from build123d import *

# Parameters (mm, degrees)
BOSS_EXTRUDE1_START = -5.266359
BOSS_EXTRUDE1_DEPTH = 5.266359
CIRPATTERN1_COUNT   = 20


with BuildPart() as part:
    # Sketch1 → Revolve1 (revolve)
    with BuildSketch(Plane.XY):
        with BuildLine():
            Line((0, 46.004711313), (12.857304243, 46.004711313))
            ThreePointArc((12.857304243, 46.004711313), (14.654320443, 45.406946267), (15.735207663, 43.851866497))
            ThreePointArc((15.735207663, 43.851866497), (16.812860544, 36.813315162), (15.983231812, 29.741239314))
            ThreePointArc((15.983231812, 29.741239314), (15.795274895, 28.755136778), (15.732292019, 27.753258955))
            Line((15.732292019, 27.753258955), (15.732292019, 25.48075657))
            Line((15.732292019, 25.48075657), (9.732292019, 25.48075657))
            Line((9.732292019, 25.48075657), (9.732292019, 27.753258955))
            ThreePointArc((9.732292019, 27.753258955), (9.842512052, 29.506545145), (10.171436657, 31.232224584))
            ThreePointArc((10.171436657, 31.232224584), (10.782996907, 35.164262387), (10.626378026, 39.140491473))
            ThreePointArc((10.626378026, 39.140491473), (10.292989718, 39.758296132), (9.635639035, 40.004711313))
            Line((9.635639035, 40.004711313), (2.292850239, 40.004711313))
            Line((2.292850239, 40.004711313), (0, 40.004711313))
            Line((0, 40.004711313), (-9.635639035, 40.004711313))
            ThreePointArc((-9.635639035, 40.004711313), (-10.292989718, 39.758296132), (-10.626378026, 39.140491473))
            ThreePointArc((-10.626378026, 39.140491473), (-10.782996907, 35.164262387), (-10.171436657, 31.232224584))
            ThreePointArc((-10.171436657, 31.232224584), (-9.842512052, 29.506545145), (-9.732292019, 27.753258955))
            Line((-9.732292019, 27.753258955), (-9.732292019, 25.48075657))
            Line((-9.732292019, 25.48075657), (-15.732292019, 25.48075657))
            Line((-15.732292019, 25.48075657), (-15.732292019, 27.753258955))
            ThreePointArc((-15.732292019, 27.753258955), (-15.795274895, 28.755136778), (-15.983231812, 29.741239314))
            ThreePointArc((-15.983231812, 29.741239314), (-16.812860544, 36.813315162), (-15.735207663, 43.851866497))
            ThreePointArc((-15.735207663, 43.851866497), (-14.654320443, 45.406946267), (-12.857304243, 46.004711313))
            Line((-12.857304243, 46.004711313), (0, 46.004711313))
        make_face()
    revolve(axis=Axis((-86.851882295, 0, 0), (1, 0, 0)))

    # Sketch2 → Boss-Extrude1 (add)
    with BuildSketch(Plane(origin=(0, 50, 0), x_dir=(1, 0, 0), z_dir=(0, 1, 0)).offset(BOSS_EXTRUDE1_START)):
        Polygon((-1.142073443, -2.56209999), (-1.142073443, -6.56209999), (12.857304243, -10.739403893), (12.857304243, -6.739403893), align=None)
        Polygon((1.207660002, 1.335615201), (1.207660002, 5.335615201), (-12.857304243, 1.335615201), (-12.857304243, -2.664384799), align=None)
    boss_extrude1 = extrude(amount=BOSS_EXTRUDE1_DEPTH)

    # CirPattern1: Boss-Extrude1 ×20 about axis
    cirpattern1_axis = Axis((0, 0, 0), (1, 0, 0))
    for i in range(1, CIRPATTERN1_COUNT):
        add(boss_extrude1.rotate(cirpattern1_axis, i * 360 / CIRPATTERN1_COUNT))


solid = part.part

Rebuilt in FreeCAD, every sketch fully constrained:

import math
import FreeCAD as App
import Part
import Sketcher

doc = App.newDocument("Part")
params = doc.addObject("Spreadsheet::Sheet", "Params")
for row, (alias, value) in enumerate([
    ("sketch1_radius", "3 mm"),
    ("sketch1_radius2", "8 mm"),
    ("sketch1_radius3", "14 mm"),
    ("sketch1_radius4", "1 mm"),
    ("revolution_angle", "360 deg"),
    ("sketch2_height", "4 mm"),
    ("pad1_length", "5.266359 mm"),
], start=1):
    params.set(f"A{row}", alias)
    params.set(f"B{row}", "=" + value)
    params.setAlias(f"B{row}", alias)

body = doc.addObject("PartDesign::Body", "Body")

# Sketch on XY plane
sketch1 = doc.addObject("Sketcher::SketchObject", "Sketch")
body.addObject(sketch1)
sketch1.AttachmentSupport = (doc.XY_Plane, [""])
sketch1.MapMode = "FlatFace"
sketch1.addGeometry(Part.ArcOfCircle(Part.Circle(App.Vector(12.9, 43, 0), App.Vector(0, 0, 1), 3), math.radians(16), math.radians(90)), False)
sketch1.addGeometry(Part.LineSegment(App.Vector(12.9, 46, 0), App.Vector(-12.9, 46, 0)), False)
sketch1.addGeometry(Part.ArcOfCircle(Part.Circle(App.Vector(-12.9, 43, 0), App.Vector(0, 0, 1), 3), math.radians(90), math.radians(164)), False)
sketch1.addGeometry(Part.ArcOfCircle(Part.Circle(App.Vector(9.8, 36.3, 0), App.Vector(0, 0, 1), 26.6), math.radians(164), math.radians(194)), False)
sketch1.addGeometry(Part.ArcOfCircle(Part.Circle(App.Vector(-23.7, 27.8, 0), App.Vector(0, 0, 1), 8), math.radians(0), math.radians(14.39)), False)
sketch1.addGeometry(Part.LineSegment(App.Vector(-15.7, 27.8, 0), App.Vector(-15.7, 25.5, 0)), False)
sketch1.addGeometry(Part.LineSegment(App.Vector(-15.7, 25.5, 0), App.Vector(-9.7, 25.5, 0)), False)
sketch1.addGeometry(Part.LineSegment(App.Vector(-9.7, 25.5, 0), App.Vector(-9.7, 27.8, 0)), False)
sketch1.addGeometry(Part.ArcOfCircle(Part.Circle(App.Vector(-23.7, 27.8, 0), App.Vector(0, 0, 1), 14), math.radians(0), math.radians(14.39)), False)
sketch1.addGeometry(Part.ArcOfCircle(Part.Circle(App.Vector(9.8, 36.3, 0), App.Vector(0, 0, 1), 20.6), math.radians(172), math.radians(194)), False)
sketch1.addGeometry(Part.ArcOfCircle(Part.Circle(App.Vector(-9.6, 39, 0), App.Vector(0, 0, 1), 1), math.radians(90), math.radians(172)), False)
sketch1.addGeometry(Part.LineSegment(App.Vector(-9.6, 40, 0), App.Vector(9.6, 40, 0)), False)
sketch1.addGeometry(Part.ArcOfCircle(Part.Circle(App.Vector(9.6, 39, 0), App.Vector(0, 0, 1), 1), math.radians(8), math.radians(90)), False)
sketch1.addGeometry(Part.ArcOfCircle(Part.Circle(App.Vector(-9.8, 36.3, 0), App.Vector(0, 0, 1), 20.6), math.radians(-14), math.radians(8)), False)
sketch1.addGeometry(Part.ArcOfCircle(Part.Circle(App.Vector(23.7, 27.8, 0), App.Vector(0, 0, 1), 14), math.radians(165.61), math.radians(180)), False)
sketch1.addGeometry(Part.LineSegment(App.Vector(9.7, 27.8, 0), App.Vector(9.7, 25.5, 0)), False)
sketch1.addGeometry(Part.LineSegment(App.Vector(9.7, 25.5, 0), App.Vector(15.7, 25.5, 0)), False)
sketch1.addGeometry(Part.LineSegment(App.Vector(15.7, 25.5, 0), App.Vector(15.7, 27.8, 0)), False)
sketch1.addGeometry(Part.ArcOfCircle(Part.Circle(App.Vector(23.7, 27.8, 0), App.Vector(0, 0, 1), 8), math.radians(165.61), math.radians(180)), False)
sketch1.addGeometry(Part.ArcOfCircle(Part.Circle(App.Vector(-9.8, 36.3, 0), App.Vector(0, 0, 1), 26.6), math.radians(-14), math.radians(16)), False)
sketch1.addConstraint(Sketcher.Constraint("Tangent", 0, 2, 1, 1))
sketch1.addConstraint(Sketcher.Constraint("Tangent", 1, 2, 2, 1))
sketch1.addConstraint(Sketcher.Constraint("Tangent", 2, 2, 3, 1))
sketch1.addConstraint(Sketcher.Constraint("Tangent", 3, 2, 4, 2))
sketch1.addConstraint(Sketcher.Constraint("Tangent", 4, 1, 5, 1))
sketch1.addConstraint(Sketcher.Constraint("Coincident", 5, 2, 6, 1))
sketch1.addConstraint(Sketcher.Constraint("Coincident", 6, 2, 7, 1))
sketch1.addConstraint(Sketcher.Constraint("Tangent", 7, 2, 8, 1))
sketch1.addConstraint(Sketcher.Constraint("Tangent", 8, 2, 9, 2))
sketch1.addConstraint(Sketcher.Constraint("Tangent", 9, 1, 10, 2))
sketch1.addConstraint(Sketcher.Constraint("Tangent", 10, 1, 11, 1))
sketch1.addConstraint(Sketcher.Constraint("Tangent", 11, 2, 12, 2))
sketch1.addConstraint(Sketcher.Constraint("Tangent", 12, 1, 13, 2))
sketch1.addConstraint(Sketcher.Constraint("Tangent", 13, 1, 14, 1))
sketch1.addConstraint(Sketcher.Constraint("Tangent", 14, 2, 15, 1))
sketch1.addConstraint(Sketcher.Constraint("Coincident", 15, 2, 16, 1))
sketch1.addConstraint(Sketcher.Constraint("Coincident", 16, 2, 17, 1))
sketch1.addConstraint(Sketcher.Constraint("Tangent", 17, 2, 18, 2))
sketch1.addConstraint(Sketcher.Constraint("Tangent", 18, 1, 19, 1))
sketch1.addConstraint(Sketcher.Constraint("Tangent", 19, 2, 0, 1))
sketch1.addConstraint(Sketcher.Constraint("Horizontal", 1))
sketch1.addConstraint(Sketcher.Constraint("Vertical", 5))
sketch1.addConstraint(Sketcher.Constraint("Horizontal", 6))
sketch1.addConstraint(Sketcher.Constraint("Vertical", 7))
sketch1.addConstraint(Sketcher.Constraint("Horizontal", 11))
sketch1.addConstraint(Sketcher.Constraint("Vertical", 15))
sketch1.addConstraint(Sketcher.Constraint("Horizontal", 16))
sketch1.addConstraint(Sketcher.Constraint("Vertical", 17))
sketch1.addConstraint(Sketcher.Constraint("Coincident", 8, 3, 4, 3))
sketch1.addConstraint(Sketcher.Constraint("Coincident", 9, 3, 3, 3))
sketch1.addConstraint(Sketcher.Constraint("Coincident", 18, 3, 14, 3))
sketch1.addConstraint(Sketcher.Constraint("Coincident", 19, 3, 13, 3))
sketch1.addConstraint(Sketcher.Constraint("Equal", 0, 2))
sketch1.addConstraint(Sketcher.Constraint("Equal", 10, 12))
sketch1.addConstraint(Sketcher.Constraint("Equal", 9, 13))
sketch1.addConstraint(Sketcher.Constraint("Equal", 8, 14))
sketch1.addConstraint(Sketcher.Constraint("Equal", 4, 18))
sketch1.addConstraint(Sketcher.Constraint("Symmetric", 3, 3, 13, 3, -2))
sketch1.addConstraint(Sketcher.Constraint("Symmetric", 6, 2, 15, 2, -2))
sketch1.addConstraint(Sketcher.Constraint("Radius", 0, 3.0))
sketch1.addConstraint(Sketcher.Constraint("Radius", 4, 8.0))
sketch1.addConstraint(Sketcher.Constraint("Radius", 8, 14.0))
sketch1.addConstraint(Sketcher.Constraint("Radius", 10, 1.0))
sketch1.addConstraint(Sketcher.Constraint("DistanceY", 10, 3, 2, 3, 4.0))
sketch1.addConstraint(Sketcher.Constraint("Radius", 3, 26.579562))
sketch1.addConstraint(Sketcher.Constraint("DistanceX", 1, 2, 1, 1, 25.714608))
sketch1.addConstraint(Sketcher.Constraint("DistanceX", 11, 1, 11, 2, 19.271278))
sketch1.addConstraint(Sketcher.Constraint("DistanceY", 5, 2, 5, 1, 2.272502))
sketch1.addConstraint(Sketcher.Constraint("DistanceY", -1, 1, 0, 3, 43.004711))
sketch1.addConstraint(Sketcher.Constraint("DistanceY", -1, 1, 4, 3, 27.753259))
sketch1.setExpression("Constraints[39]", "Params.sketch1_radius")
sketch1.setExpression("Constraints[40]", "Params.sketch1_radius2")
sketch1.setExpression("Constraints[41]", "Params.sketch1_radius3")
sketch1.setExpression("Constraints[42]", "Params.sketch1_radius4")
revolution = doc.addObject("PartDesign::Revolution", "Revolution")
body.addObject(revolution)
revolution.Profile = sketch1
revolution.ReferenceAxis = (sketch1, ["H_Axis"])
revolution.setExpression("Angle", "Params.revolution_angle")

# Sketch on XZ plane
sketch2 = doc.addObject("Sketcher::SketchObject", "Sketch001")
body.addObject(sketch2)
sketch2.AttachmentSupport = (doc.XZ_Plane, [""])
sketch2.MapMode = "FlatFace"
sketch2.AttachmentOffset = App.Placement(App.Vector(0, 0, -44.733641), App.Rotation())
sketch2.addGeometry(Part.LineSegment(App.Vector(-1.1, 2.6, 0), App.Vector(-1.1, 6.6, 0)), False)
sketch2.addGeometry(Part.LineSegment(App.Vector(-1.1, 6.6, 0), App.Vector(12.9, 10.7, 0)), False)
sketch2.addGeometry(Part.LineSegment(App.Vector(12.9, 10.7, 0), App.Vector(12.9, 6.7, 0)), False)
sketch2.addGeometry(Part.LineSegment(App.Vector(12.9, 6.7, 0), App.Vector(-1.1, 2.6, 0)), False)
sketch2.addGeometry(Part.LineSegment(App.Vector(1.2, -1.3, 0), App.Vector(1.2, -5.3, 0)), False)
sketch2.addGeometry(Part.LineSegment(App.Vector(1.2, -5.3, 0), App.Vector(-12.9, -1.3, 0)), False)
sketch2.addGeometry(Part.LineSegment(App.Vector(-12.9, -1.3, 0), App.Vector(-12.9, 2.7, 0)), False)
sketch2.addGeometry(Part.LineSegment(App.Vector(-12.9, 2.7, 0), App.Vector(1.2, -1.3, 0)), False)
sketch2.addConstraint(Sketcher.Constraint("Coincident", 0, 2, 1, 1))
sketch2.addConstraint(Sketcher.Constraint("Coincident", 1, 2, 2, 1))
sketch2.addConstraint(Sketcher.Constraint("Coincident", 2, 2, 3, 1))
sketch2.addConstraint(Sketcher.Constraint("Coincident", 3, 2, 0, 1))
sketch2.addConstraint(Sketcher.Constraint("Coincident", 4, 2, 5, 1))
sketch2.addConstraint(Sketcher.Constraint("Coincident", 5, 2, 6, 1))
sketch2.addConstraint(Sketcher.Constraint("Coincident", 6, 2, 7, 1))
sketch2.addConstraint(Sketcher.Constraint("Coincident", 7, 2, 4, 1))
sketch2.addConstraint(Sketcher.Constraint("Vertical", 0))
sketch2.addConstraint(Sketcher.Constraint("Vertical", 2))
sketch2.addConstraint(Sketcher.Constraint("Vertical", 4))
sketch2.addConstraint(Sketcher.Constraint("Vertical", 6))
sketch2.addConstraint(Sketcher.Constraint("Parallel", 1, 3))
sketch2.addConstraint(Sketcher.Constraint("Parallel", 5, 7))
sketch2.addConstraint(Sketcher.Constraint("Horizontal", 5, 2, 7, 2))
sketch2.addConstraint(Sketcher.Constraint("Equal", 2, 4))
sketch2.addConstraint(Sketcher.Constraint("DistanceY", 0, 1, 0, 2, 4.0))
sketch2.addConstraint(Sketcher.Constraint("DistanceY", -1, 1, 0, 2, 6.5621))
sketch2.addConstraint(Sketcher.Constraint("DistanceX", -1, 1, 4, 2, 1.20766))
sketch2.addConstraint(Sketcher.Constraint("DistanceY", 4, 2, 2, 2, 12.075019))
sketch2.addConstraint(Sketcher.Constraint("DistanceX", 5, 2, 3, 2, 11.715231))
sketch2.addConstraint(Sketcher.Constraint("DistanceX", 5, 2, 2, 2, 25.714608))
sketch2.addConstraint(Sketcher.Constraint("Distance", 1, 14.609327))
sketch2.addConstraint(Sketcher.Constraint("Distance", 5, 14.622695))
sketch2.setExpression("Constraints[16]", "Params.sketch2_height")
pad1 = doc.addObject("PartDesign::Pad", "Pad")
body.addObject(pad1)
pad1.Profile = sketch2
pad1.setExpression("Length", "Params.pad1_length")
pad1.Reversed = True
doc.recompute()

polarpattern = doc.addObject("PartDesign::PolarPattern", "PolarPattern")
body.addObject(polarpattern)
polarpattern.Originals = [pad1]
polarpattern.Axis = (doc.X_Axis, [""])
polarpattern.Angle = 360
polarpattern.Occurrences = 20
body.Tip = polarpattern

doc.recompute()
